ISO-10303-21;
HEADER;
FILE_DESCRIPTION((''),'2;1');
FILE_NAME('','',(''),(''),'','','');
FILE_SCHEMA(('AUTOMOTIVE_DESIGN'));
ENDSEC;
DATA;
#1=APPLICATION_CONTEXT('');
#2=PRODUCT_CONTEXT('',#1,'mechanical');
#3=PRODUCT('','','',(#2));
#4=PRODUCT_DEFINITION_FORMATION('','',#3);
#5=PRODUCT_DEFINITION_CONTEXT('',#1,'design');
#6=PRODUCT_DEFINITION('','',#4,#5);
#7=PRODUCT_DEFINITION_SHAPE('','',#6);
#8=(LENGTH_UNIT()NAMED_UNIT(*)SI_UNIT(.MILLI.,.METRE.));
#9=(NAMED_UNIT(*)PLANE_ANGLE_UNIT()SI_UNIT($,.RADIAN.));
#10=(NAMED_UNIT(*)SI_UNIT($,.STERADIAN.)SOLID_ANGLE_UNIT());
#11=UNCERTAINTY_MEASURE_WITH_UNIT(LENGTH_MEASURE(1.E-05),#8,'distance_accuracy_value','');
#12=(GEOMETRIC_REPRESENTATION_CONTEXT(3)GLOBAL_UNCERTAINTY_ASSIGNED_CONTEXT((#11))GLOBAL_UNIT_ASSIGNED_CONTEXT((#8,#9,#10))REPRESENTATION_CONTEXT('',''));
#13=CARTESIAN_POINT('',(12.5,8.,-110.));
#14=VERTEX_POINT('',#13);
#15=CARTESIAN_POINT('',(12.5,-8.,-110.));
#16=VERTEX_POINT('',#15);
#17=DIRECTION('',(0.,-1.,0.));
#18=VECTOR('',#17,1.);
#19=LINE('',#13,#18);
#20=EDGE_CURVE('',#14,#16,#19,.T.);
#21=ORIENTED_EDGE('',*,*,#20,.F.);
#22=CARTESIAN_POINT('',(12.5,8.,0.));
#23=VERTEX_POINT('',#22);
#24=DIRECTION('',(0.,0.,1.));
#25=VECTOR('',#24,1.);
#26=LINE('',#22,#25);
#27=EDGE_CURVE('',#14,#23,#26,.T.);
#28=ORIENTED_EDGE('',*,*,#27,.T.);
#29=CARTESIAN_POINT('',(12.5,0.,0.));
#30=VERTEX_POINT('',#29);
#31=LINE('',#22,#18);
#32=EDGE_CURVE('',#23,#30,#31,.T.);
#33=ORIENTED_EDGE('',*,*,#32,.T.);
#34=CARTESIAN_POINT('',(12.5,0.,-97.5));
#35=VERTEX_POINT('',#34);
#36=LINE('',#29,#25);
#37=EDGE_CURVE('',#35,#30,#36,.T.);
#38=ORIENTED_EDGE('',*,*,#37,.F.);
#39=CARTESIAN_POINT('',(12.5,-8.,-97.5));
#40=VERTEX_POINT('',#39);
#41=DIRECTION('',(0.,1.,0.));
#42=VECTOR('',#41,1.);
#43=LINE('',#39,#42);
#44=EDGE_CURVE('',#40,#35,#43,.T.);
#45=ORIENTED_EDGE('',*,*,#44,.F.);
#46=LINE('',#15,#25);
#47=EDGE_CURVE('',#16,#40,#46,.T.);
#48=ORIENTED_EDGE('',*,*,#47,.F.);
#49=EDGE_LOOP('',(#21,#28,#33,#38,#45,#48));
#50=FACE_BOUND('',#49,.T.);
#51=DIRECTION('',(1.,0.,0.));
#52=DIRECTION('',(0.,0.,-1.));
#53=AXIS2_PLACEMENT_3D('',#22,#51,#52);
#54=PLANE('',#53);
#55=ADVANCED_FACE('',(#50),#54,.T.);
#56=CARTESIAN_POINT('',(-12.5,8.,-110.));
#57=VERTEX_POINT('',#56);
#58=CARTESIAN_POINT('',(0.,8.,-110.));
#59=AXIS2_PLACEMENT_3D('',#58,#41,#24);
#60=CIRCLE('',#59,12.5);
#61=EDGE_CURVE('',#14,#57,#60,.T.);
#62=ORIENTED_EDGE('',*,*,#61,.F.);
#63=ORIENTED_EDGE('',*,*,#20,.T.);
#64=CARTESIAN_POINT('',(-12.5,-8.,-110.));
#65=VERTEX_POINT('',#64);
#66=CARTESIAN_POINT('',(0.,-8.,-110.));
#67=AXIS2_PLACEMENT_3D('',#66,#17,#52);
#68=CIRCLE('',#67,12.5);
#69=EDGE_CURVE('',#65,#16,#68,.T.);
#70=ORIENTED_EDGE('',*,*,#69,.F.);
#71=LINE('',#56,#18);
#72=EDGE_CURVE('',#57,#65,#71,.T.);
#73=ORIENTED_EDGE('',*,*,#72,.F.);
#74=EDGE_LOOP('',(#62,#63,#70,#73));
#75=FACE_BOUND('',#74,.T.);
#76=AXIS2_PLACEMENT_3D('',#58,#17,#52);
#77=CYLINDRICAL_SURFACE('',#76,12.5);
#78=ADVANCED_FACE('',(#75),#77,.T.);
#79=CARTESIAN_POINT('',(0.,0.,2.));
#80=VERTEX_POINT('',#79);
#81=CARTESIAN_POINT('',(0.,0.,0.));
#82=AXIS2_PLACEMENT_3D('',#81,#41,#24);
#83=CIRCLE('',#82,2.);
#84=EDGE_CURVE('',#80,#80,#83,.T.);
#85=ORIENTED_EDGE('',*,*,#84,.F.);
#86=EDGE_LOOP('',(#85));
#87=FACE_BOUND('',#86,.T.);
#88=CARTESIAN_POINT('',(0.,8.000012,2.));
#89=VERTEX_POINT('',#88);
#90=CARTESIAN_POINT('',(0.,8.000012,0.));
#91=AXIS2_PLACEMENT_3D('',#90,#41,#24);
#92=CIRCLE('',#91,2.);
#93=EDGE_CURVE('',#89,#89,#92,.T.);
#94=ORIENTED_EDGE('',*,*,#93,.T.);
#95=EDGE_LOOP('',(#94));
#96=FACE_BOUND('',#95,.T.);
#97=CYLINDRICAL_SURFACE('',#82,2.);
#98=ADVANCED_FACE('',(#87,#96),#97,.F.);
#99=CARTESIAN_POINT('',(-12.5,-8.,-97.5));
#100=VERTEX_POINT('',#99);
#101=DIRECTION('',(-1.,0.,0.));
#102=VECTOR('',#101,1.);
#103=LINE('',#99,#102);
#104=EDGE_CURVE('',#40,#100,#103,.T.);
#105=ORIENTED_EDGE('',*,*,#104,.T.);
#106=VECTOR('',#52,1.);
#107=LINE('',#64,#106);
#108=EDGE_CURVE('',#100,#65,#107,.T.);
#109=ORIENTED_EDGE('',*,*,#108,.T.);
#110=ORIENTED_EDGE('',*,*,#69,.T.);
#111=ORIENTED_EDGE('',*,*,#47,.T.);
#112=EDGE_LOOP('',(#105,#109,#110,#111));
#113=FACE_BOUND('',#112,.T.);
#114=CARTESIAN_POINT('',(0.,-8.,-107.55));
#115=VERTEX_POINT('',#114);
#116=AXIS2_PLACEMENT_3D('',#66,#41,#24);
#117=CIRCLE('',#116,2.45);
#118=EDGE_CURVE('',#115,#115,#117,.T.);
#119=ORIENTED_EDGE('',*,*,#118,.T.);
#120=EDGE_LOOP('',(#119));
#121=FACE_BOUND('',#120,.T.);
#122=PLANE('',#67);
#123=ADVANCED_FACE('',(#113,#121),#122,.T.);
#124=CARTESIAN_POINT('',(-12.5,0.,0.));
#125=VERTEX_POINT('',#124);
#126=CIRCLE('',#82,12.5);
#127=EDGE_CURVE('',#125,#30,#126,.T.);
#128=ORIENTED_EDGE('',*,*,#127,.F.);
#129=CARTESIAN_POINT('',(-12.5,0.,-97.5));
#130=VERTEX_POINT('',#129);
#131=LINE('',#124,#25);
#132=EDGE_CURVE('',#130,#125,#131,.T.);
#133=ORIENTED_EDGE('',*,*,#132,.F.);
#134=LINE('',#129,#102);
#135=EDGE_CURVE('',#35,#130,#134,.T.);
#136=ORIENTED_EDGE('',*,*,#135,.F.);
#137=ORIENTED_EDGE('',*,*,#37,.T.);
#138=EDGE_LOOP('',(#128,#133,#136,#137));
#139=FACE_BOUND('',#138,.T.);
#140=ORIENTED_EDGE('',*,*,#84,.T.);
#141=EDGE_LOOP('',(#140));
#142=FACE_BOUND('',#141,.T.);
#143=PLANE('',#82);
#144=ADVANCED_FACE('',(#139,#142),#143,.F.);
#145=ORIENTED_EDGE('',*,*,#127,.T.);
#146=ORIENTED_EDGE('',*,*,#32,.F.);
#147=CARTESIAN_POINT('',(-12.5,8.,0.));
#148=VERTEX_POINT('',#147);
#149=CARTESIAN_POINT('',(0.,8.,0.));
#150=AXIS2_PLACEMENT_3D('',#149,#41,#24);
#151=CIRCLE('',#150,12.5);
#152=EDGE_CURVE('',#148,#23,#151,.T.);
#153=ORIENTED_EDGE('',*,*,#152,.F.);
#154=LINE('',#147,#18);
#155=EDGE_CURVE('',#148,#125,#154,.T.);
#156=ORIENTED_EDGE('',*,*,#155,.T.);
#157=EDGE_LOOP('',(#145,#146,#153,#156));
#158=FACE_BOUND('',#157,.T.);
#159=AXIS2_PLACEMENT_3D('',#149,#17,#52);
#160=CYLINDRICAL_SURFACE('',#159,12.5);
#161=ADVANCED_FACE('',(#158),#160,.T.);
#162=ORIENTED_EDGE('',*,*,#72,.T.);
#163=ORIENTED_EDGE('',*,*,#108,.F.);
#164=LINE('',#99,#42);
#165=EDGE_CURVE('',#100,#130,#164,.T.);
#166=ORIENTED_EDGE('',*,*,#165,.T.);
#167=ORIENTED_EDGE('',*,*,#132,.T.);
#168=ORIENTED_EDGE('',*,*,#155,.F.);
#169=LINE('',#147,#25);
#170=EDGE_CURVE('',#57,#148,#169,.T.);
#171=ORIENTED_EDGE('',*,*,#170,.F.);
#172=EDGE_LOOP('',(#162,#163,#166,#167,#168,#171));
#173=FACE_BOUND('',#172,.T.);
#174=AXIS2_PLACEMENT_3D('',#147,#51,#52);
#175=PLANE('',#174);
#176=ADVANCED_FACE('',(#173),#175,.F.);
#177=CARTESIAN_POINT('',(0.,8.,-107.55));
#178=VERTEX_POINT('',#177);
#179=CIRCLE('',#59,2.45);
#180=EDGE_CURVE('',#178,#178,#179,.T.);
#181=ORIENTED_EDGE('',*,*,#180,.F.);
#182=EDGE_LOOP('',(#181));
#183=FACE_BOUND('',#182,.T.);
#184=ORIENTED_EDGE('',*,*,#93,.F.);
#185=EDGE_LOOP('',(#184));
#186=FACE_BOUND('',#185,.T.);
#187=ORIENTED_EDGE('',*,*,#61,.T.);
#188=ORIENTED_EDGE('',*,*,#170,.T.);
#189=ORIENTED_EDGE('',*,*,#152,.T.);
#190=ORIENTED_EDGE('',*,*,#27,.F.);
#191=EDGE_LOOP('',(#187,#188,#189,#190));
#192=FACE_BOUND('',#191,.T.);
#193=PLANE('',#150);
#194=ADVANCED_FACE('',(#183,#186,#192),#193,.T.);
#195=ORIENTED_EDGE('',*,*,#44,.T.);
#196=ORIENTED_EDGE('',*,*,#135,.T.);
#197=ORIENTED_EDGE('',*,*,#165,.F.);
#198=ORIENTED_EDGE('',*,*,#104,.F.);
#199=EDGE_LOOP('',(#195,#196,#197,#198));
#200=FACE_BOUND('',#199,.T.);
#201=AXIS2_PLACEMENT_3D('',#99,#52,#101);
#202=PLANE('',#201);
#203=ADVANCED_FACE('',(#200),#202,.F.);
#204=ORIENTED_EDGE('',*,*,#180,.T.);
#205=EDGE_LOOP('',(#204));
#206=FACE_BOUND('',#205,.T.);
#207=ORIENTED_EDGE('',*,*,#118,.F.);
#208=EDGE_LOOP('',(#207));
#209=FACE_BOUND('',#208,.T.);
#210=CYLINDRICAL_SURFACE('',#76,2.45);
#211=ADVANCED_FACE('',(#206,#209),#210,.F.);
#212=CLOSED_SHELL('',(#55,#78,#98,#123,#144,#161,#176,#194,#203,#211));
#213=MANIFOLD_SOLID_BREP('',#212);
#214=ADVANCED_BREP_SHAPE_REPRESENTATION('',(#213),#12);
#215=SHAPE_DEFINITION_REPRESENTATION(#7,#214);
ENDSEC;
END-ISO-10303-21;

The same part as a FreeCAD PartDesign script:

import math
import FreeCAD as App
import Part
import Sketcher
from FreeCAD import Vector

doc = App.newDocument("Part")
body = doc.addObject("PartDesign::Body", "Body")

sketch1 = body.newObject("Sketcher::SketchObject", "Sketch")
sketch1.AttachmentSupport = (doc.getObject("XZ_Plane"), [""])
sketch1.MapMode = "FlatFace"
sketch1.addGeometry([
    Part.LineSegment(Vector(12.5, 0, 0), Vector(12.5, -110, 0)),
    Part.ArcOfCircle(Part.Circle(Vector(0, -110, 0), Vector(0, 0, 1), 12.5), math.radians(180), math.radians(360)),
    Part.LineSegment(Vector(-12.5, -110, 0), Vector(-12.5, 0, 0)),
    Part.ArcOfCircle(Part.Circle(Vector(0, 0, 0), Vector(0, 0, 1), 12.5), math.radians(0), math.radians(180)),
    Part.Circle(Vector(0, -110, 0), Vector(0, 0, 1), 2.5),
], False)
sketch1.addConstraint([
    Sketcher.Constraint("Tangent", 0, 2, 1, 2),
    Sketcher.Constraint("Tangent", 1, 1, 2, 1),
    Sketcher.Constraint("Tangent", 2, 2, 3, 2),
    Sketcher.Constraint("Tangent", 3, 1, 0, 1),
    Sketcher.Constraint("Vertical", 0),
    Sketcher.Constraint("Vertical", 2),
    Sketcher.Constraint("Coincident", 3, 3, -1, 1),
    Sketcher.Constraint("Coincident", 4, 3, 1, 3),
    Sketcher.Constraint("Diameter", 4, 4.9),
    Sketcher.Constraint("Radius", 1, 12.5),
    Sketcher.Constraint("DistanceY", 0, 2, 0, 1, 110.0),
])
pad1 = body.newObject("PartDesign::Pad", "Pad")
pad1.Profile = sketch1
pad1.Length = 8
pad1.Reversed = True

sketch2 = body.newObject("Sketcher::SketchObject", "Sketch001")
sketch2.AttachmentSupport = (doc.getObject("XZ_Plane"), [""])
sketch2.MapMode = "FlatFace"
sketch2.AttachmentOffset = App.Placement(Vector(0, 0, -8), App.Rotation())
sketch2.addGeometry(Part.Circle(Vector(0, 0, 0), Vector(0, 0, 1), 2), False)
sketch2.addConstraint([
    Sketcher.Constraint("Coincident", 0, 3, -1, 1),
    Sketcher.Constraint("Diameter", 0, 4.0),
])
pocket1 = body.newObject("PartDesign::Pocket", "Pocket")
pocket1.Profile = sketch2
pocket1.Type = "ThroughAll"
pocket1.Midplane = True

sketch3 = body.newObject("Sketcher::SketchObject", "Sketch002")
sketch3.AttachmentSupport = (doc.getObject("XZ_Plane"), [""])
sketch3.MapMode = "FlatFace"
sketch3.AttachmentOffset = App.Placement(Vector(0, 0, 8), App.Rotation())
sketch3.addGeometry([
    Part.LineSegment(Vector(12, -110, 0), Vector(12, -98, 0)),
    Part.LineSegment(Vector(12, -98, 0), Vector(-12, -98, 0)),
    Part.LineSegment(Vector(-12, -98, 0), Vector(-12, -110, 0)),
    Part.ArcOfCircle(Part.Circle(Vector(0, -110, 0), Vector(0, 0, 1), 12), math.radians(180), math.radians(360)),
], False)
sketch3.addConstraint([
    Sketcher.Constraint("Coincident", 0, 2, 1, 1),
    Sketcher.Constraint("Coincident", 1, 2, 2, 1),
    Sketcher.Constraint("Tangent", 2, 2, 3, 1),
    Sketcher.Constraint("Tangent", 3, 2, 0, 1),
    Sketcher.Constraint("Vertical", 0),
    Sketcher.Constraint("Horizontal", 1),
    Sketcher.Constraint("Vertical", 2),
    Sketcher.Constraint("PointOnObject", 3, 3, -2),
    Sketcher.Constraint("Radius", 3, 12.5),
    Sketcher.Constraint("DistanceY", 0, 1, 0, 2, 12.5),
    Sketcher.Constraint("DistanceY", 3, 3, -1, 1, 110.0),
])
pad2 = body.newObject("PartDesign::Pad", "Pad001")
pad2.Profile = sketch3
pad2.Length = 8
pad2.Reversed = True

sketch4 = body.newObject("Sketcher::SketchObject", "Sketch003")
sketch4.AttachmentSupport = (doc.getObject("XZ_Plane"), [""])
sketch4.MapMode = "FlatFace"
sketch4.AttachmentOffset = App.Placement(Vector(0, 0, -8), App.Rotation())
sketch4.addGeometry(Part.Circle(Vector(0, -110, 0), Vector(0, 0, 1), 2.5), False)
sketch4.addConstraint([
    Sketcher.Constraint("PointOnObject", 0, 3, -2),
    Sketcher.Constraint("Diameter", 0, 4.9),
    Sketcher.Constraint("DistanceY", 0, 3, -1, 1, 110.0),
])
pocket2 = body.newObject("PartDesign::Pocket", "Pocket001")
pocket2.Profile = sketch4
pocket2.Type = "ThroughAll"
pocket2.Midplane = True

doc.recompute()
